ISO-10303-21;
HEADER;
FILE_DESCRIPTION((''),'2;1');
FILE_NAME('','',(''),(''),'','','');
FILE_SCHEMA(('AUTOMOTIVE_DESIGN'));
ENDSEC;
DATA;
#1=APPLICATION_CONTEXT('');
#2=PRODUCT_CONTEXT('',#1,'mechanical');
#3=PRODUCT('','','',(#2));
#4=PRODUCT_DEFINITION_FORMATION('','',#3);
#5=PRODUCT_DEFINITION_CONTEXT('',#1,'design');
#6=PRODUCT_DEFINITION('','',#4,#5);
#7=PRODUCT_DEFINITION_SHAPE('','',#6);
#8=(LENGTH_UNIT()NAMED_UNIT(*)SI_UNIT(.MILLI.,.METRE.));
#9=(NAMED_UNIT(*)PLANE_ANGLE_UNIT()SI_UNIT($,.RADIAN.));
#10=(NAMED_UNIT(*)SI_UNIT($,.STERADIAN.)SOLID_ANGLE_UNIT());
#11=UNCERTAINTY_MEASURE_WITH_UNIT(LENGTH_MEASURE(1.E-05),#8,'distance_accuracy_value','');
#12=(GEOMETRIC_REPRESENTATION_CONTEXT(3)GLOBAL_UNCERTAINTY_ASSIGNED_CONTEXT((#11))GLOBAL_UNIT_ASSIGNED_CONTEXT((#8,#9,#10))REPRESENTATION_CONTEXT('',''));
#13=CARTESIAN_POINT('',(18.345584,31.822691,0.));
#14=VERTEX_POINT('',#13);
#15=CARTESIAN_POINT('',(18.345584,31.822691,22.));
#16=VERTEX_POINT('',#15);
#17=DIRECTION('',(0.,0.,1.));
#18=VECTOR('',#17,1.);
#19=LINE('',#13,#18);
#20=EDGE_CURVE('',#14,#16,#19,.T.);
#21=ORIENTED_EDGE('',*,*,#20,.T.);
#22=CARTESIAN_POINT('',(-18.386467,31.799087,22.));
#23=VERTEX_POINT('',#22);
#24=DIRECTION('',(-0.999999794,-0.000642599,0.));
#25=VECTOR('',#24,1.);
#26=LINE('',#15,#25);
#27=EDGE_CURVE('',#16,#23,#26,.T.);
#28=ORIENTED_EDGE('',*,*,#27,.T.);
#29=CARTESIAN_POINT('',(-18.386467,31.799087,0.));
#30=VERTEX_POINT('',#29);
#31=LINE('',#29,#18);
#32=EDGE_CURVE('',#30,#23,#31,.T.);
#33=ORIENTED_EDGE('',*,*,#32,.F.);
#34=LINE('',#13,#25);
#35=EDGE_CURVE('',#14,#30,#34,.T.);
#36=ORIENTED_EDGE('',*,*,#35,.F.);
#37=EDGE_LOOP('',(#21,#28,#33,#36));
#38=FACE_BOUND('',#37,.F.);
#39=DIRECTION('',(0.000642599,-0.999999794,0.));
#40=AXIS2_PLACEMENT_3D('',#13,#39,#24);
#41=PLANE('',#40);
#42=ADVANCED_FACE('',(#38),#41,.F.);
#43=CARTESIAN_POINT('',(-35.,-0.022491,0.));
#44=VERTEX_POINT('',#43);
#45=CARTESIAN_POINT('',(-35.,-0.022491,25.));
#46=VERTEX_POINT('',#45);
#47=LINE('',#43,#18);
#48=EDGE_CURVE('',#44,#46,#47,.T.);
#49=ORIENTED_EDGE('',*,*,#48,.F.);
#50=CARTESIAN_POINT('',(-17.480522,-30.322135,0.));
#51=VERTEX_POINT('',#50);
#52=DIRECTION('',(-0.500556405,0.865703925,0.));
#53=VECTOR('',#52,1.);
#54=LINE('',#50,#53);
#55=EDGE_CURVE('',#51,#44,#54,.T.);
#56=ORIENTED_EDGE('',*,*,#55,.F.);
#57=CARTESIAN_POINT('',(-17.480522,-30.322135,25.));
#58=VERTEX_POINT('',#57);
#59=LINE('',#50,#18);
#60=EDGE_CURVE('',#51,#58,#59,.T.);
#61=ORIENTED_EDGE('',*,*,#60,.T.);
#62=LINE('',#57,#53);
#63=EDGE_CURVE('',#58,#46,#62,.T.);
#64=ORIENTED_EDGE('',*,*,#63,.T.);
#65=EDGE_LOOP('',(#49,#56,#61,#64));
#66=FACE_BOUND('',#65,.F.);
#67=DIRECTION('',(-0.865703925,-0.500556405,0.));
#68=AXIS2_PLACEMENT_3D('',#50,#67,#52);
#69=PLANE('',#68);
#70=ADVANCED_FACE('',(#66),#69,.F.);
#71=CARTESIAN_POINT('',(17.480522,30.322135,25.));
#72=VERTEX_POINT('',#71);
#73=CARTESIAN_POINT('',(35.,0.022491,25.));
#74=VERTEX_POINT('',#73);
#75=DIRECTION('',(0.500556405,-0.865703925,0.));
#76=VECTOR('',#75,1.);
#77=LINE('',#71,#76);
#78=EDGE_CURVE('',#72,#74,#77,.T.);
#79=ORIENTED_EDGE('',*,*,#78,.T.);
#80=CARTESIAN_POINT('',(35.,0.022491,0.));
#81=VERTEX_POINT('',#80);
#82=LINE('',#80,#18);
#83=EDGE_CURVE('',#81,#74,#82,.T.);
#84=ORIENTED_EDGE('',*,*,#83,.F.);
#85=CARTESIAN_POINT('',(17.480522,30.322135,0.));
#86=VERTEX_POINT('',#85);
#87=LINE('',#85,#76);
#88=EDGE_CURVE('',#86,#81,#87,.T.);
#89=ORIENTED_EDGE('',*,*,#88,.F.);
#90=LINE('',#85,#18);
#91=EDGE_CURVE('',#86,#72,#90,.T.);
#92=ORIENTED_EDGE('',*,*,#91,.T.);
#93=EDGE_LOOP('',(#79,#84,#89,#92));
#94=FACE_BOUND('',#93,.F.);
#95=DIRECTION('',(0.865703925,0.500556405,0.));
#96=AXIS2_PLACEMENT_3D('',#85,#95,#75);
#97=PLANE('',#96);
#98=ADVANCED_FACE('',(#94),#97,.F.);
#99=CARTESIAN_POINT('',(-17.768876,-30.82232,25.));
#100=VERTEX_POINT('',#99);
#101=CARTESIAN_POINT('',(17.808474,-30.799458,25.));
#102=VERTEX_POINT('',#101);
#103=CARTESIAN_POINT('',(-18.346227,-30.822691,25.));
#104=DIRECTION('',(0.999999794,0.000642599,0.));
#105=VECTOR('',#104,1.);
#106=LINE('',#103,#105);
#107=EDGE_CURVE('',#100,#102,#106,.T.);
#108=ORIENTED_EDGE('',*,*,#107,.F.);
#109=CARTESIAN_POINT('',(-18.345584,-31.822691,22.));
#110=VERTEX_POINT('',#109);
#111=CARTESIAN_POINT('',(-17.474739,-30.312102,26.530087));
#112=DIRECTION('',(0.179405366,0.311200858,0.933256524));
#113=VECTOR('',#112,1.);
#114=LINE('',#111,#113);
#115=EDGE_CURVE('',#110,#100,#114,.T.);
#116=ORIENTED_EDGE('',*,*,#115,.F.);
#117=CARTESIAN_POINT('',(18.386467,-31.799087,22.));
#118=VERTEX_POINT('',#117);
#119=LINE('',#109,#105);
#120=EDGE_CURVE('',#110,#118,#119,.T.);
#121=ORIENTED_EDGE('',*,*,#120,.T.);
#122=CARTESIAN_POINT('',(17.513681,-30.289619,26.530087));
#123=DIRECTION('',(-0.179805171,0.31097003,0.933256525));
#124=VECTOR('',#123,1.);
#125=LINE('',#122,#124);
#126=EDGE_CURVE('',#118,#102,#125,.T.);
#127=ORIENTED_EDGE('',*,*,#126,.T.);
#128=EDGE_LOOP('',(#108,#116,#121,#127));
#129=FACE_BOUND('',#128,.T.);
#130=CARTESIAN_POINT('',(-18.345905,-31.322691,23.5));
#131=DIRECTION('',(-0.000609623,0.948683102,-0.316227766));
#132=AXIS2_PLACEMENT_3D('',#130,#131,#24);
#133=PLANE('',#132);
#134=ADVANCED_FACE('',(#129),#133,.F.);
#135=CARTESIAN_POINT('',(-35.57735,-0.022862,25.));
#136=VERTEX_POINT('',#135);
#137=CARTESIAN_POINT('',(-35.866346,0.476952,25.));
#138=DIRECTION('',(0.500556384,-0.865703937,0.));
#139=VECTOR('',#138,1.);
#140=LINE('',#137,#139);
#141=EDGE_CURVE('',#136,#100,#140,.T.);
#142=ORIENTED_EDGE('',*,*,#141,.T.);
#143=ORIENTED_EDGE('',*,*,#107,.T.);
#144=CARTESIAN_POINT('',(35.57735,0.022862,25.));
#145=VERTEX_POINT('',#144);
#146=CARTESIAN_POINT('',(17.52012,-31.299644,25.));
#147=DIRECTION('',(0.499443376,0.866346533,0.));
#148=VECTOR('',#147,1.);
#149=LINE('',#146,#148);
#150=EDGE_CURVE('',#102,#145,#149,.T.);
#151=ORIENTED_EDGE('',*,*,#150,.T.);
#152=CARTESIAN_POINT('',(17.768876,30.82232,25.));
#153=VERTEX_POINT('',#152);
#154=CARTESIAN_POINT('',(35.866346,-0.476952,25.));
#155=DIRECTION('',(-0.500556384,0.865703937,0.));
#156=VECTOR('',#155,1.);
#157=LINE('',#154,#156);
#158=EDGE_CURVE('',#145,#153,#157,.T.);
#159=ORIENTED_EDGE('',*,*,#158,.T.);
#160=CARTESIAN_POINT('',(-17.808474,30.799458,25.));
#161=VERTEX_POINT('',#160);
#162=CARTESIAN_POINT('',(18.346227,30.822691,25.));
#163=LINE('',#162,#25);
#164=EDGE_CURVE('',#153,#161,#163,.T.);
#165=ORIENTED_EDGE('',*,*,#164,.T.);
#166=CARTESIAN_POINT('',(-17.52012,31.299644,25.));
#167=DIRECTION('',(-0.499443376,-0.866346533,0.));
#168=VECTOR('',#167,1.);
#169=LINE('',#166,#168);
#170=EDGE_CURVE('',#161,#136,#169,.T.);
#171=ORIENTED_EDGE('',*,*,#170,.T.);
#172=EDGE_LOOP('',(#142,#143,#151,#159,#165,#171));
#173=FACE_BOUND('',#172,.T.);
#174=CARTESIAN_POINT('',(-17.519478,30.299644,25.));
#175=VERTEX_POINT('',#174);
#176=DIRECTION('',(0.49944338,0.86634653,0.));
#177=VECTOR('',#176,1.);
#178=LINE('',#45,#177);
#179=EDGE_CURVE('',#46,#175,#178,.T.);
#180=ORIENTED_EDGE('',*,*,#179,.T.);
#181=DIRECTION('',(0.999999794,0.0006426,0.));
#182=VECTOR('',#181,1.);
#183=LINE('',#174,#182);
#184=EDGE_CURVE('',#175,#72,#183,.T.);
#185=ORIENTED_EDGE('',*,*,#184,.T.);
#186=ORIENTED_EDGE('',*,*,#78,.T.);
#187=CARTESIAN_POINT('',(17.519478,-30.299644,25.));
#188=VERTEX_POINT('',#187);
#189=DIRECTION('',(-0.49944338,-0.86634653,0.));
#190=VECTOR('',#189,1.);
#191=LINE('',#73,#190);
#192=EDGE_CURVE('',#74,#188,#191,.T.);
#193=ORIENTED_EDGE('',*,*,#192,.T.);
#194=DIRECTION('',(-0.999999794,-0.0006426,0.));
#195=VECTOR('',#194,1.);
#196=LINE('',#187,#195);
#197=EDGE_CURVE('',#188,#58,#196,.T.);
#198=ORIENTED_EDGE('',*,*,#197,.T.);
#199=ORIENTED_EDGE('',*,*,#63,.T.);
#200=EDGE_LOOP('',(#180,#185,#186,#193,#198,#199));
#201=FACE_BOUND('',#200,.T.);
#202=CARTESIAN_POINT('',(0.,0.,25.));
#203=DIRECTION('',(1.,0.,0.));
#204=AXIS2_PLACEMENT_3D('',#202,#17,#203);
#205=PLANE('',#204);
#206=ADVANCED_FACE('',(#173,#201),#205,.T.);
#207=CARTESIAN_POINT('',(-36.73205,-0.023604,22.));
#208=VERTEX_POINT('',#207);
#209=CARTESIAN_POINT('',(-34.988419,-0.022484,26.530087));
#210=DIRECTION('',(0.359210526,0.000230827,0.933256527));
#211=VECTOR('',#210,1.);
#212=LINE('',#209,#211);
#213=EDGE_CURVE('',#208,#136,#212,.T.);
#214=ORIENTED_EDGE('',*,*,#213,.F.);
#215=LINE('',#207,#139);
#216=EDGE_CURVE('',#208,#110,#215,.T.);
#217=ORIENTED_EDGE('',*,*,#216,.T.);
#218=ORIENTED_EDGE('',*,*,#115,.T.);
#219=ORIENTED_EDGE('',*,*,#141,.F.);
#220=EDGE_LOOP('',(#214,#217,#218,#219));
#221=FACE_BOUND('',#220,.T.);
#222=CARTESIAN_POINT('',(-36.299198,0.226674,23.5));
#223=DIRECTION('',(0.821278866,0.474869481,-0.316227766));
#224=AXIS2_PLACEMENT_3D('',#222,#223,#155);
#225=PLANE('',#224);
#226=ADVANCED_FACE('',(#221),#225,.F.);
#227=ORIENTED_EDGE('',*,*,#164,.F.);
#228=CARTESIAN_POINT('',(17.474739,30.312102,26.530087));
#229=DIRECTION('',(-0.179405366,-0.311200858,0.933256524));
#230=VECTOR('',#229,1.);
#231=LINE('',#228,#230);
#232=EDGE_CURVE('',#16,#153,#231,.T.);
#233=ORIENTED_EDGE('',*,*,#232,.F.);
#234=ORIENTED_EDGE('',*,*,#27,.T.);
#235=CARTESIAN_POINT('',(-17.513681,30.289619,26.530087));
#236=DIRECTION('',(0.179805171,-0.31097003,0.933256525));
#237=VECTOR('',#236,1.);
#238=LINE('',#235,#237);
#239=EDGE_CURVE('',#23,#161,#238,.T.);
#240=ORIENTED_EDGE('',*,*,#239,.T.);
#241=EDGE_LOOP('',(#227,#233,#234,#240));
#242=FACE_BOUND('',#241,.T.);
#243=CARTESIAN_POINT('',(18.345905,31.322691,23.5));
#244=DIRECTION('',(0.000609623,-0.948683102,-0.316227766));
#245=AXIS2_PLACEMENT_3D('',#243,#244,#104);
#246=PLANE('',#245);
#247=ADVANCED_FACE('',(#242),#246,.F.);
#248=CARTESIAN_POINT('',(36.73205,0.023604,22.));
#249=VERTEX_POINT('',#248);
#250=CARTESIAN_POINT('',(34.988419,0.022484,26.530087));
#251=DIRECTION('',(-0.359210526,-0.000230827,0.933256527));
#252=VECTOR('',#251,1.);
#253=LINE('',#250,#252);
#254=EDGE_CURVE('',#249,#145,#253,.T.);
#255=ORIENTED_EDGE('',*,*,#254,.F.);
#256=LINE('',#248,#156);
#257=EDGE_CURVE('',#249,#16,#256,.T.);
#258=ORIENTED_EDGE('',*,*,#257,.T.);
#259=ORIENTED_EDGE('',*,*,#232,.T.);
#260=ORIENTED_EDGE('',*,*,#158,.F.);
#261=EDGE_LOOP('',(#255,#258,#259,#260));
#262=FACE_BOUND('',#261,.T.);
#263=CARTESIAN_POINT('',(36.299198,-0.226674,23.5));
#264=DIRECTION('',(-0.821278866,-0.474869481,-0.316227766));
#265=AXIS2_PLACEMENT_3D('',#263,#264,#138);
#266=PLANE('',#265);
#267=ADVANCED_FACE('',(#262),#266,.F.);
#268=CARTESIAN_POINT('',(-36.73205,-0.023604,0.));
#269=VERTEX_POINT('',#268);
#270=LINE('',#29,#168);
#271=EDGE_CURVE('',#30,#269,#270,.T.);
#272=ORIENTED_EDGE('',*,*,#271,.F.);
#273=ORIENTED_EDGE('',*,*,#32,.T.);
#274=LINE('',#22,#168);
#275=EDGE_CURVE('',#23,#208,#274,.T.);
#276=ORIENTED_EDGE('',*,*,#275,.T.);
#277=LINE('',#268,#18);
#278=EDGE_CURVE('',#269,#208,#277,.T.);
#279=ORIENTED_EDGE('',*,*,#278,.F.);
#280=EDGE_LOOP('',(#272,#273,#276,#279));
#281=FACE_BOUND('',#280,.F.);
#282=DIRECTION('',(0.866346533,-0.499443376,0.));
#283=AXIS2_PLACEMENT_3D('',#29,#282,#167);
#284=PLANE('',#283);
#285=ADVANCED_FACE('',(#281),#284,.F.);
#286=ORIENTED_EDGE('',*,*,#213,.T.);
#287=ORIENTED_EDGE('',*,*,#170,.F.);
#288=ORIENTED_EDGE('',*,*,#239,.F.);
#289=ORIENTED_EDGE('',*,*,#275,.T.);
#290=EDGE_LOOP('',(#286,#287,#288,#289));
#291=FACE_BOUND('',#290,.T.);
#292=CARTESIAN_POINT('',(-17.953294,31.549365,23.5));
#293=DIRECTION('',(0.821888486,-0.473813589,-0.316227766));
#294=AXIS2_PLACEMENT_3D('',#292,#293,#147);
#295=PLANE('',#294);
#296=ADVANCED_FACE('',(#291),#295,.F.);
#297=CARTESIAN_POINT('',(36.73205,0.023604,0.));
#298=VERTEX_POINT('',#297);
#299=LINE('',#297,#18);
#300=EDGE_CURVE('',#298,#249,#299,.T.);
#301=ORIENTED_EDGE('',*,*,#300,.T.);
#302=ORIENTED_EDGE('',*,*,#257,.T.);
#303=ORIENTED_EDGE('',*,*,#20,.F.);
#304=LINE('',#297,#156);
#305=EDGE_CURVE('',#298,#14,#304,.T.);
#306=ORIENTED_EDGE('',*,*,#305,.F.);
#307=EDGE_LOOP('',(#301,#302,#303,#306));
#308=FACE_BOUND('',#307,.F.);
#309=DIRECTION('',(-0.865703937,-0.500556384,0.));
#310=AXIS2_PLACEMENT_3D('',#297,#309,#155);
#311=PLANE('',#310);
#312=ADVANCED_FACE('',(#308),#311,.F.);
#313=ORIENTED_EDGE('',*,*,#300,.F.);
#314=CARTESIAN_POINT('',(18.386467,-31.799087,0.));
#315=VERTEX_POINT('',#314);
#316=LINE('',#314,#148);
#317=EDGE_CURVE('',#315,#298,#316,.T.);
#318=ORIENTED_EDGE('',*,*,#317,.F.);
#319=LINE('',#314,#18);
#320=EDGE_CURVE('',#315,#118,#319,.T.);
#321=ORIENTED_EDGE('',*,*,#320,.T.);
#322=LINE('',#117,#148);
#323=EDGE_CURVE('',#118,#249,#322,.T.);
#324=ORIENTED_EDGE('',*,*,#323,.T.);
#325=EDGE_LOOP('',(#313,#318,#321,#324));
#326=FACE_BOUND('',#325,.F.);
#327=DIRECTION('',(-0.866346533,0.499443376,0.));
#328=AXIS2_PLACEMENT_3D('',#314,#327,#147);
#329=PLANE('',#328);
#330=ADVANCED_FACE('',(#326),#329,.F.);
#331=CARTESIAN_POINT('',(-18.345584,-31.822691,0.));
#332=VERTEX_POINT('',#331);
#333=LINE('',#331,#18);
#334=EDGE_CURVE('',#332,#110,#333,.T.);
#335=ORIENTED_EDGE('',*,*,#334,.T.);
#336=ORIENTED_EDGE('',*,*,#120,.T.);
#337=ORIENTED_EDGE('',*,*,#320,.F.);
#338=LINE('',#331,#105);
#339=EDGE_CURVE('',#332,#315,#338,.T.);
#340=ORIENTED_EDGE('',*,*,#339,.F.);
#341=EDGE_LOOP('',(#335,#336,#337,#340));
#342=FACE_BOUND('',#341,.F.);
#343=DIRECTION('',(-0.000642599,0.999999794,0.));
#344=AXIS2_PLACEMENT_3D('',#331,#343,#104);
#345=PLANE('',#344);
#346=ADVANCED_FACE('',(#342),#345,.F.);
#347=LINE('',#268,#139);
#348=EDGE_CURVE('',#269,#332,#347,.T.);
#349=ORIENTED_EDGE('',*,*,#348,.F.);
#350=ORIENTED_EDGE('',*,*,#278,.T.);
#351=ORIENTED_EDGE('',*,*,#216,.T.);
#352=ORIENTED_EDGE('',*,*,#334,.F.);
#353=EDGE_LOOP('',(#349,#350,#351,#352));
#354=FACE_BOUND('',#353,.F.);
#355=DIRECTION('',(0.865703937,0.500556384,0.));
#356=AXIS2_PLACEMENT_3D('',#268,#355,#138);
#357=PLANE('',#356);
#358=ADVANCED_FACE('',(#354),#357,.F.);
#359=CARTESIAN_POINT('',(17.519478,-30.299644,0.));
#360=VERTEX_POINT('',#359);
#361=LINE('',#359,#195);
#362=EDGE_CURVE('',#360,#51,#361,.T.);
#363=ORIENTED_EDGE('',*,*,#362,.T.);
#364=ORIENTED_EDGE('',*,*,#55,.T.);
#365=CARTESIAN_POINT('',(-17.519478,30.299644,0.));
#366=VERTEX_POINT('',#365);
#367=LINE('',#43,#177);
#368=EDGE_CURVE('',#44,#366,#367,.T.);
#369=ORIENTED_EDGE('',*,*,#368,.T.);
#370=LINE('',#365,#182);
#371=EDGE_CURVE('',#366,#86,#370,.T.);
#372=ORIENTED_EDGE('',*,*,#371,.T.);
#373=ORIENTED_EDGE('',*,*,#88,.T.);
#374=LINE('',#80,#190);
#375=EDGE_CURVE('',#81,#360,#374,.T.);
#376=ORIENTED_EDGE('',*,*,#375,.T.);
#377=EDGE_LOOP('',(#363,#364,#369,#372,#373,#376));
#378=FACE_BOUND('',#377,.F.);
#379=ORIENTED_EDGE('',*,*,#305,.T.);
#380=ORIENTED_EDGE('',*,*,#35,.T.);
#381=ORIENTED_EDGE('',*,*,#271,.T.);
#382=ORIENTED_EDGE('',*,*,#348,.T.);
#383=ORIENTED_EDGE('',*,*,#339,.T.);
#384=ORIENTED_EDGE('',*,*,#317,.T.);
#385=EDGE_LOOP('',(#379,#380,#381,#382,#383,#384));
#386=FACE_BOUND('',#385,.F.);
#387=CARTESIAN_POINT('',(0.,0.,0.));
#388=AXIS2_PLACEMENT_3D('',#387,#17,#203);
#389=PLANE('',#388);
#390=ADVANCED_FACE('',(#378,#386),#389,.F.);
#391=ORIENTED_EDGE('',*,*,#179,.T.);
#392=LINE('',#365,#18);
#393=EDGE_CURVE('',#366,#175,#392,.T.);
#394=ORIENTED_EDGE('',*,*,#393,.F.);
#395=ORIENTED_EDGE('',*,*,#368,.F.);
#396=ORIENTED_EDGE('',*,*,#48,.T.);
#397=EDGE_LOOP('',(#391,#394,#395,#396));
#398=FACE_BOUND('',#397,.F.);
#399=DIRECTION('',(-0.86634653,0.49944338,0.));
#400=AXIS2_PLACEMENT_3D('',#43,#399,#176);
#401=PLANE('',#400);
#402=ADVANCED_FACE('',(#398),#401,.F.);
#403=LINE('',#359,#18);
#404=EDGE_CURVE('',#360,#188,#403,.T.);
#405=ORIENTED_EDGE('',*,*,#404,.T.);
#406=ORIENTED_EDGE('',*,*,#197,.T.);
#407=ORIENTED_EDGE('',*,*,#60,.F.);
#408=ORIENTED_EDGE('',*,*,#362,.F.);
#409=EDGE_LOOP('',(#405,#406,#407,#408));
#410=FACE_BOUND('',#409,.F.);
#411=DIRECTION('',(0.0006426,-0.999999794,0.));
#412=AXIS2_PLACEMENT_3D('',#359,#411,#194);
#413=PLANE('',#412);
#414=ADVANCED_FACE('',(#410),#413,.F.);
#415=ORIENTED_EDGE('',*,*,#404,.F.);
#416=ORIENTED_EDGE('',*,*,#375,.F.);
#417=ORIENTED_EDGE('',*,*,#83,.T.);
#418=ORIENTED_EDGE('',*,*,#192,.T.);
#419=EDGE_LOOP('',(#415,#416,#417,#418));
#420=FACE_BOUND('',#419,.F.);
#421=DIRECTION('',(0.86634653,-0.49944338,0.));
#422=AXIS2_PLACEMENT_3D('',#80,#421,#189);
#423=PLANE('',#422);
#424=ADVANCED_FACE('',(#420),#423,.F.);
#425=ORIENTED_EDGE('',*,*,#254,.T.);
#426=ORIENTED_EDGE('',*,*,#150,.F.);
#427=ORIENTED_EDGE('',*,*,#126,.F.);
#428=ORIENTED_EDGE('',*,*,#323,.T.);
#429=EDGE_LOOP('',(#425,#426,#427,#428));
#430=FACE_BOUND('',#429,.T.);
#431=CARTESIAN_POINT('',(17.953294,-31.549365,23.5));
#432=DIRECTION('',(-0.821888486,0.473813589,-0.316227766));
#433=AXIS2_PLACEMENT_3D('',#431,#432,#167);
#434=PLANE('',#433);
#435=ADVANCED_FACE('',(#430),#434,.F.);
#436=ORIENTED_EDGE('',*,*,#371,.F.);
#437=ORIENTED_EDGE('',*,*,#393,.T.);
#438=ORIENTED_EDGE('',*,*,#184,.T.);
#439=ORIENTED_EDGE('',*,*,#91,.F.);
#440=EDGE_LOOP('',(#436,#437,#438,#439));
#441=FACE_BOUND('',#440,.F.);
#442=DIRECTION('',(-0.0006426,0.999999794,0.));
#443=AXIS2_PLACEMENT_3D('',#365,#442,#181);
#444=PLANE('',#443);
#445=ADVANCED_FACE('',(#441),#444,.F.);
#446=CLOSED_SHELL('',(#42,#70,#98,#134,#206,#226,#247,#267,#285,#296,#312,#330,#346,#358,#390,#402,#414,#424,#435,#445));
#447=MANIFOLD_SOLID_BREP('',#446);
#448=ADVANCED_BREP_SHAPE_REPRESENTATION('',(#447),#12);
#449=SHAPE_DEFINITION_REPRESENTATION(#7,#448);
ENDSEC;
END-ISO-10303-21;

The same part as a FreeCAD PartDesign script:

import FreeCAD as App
import Part
import Sketcher
Q = App.Units.Quantity


def edges_at(feature, points):
    """Names of the edges that pass closest to the given points."""
    edges = feature.Shape.Edges
    near = lambda p: min(range(len(edges)), key=lambda i: edges[i].distToShape(Part.Vertex(*p))[0])
    return sorted({f"Edge{near(p) + 1}" for p in points})

doc = App.newDocument("Part")
body = doc.addObject("PartDesign::Body", "Body")

# Sketch on XY plane
sketch1 = doc.addObject("Sketcher::SketchObject", "Sketch")
body.addObject(sketch1)
sketch1.AttachmentSupport = (doc.XY_Plane, [""])
sketch1.MapMode = "FlatFace"
sketch1.addGeometry([
    Part.LineSegment(App.Vector(-37, 0, 0), App.Vector(-18, -32, 0)),  # 0
    Part.LineSegment(App.Vector(-18, -32, 0), App.Vector(18, -32, 0)),  # 1
    Part.LineSegment(App.Vector(18, -32, 0), App.Vector(37, 0, 0)),  # 2
    Part.LineSegment(App.Vector(37, 0, 0), App.Vector(18, 32, 0)),  # 3
    Part.LineSegment(App.Vector(18, 32, 0), App.Vector(-18, 32, 0)),  # 4
    Part.LineSegment(App.Vector(-18, 32, 0), App.Vector(-37, 0, 0)),  # 5
    Part.LineSegment(App.Vector(-35, 0, 0), App.Vector(-18, 30, 0)),  # 6
    Part.LineSegment(App.Vector(-18, 30, 0), App.Vector(17, 30, 0)),  # 7
    Part.LineSegment(App.Vector(17, 30, 0), App.Vector(35, 0, 0)),  # 8
    Part.LineSegment(App.Vector(35, 0, 0), App.Vector(18, -30, 0)),  # 9
    Part.LineSegment(App.Vector(18, -30, 0), App.Vector(-17, -30, 0)),  # 10
    Part.LineSegment(App.Vector(-17, -30, 0), App.Vector(-35, 0, 0)),  # 11
], False)
sketch1.addConstraint([
    Sketcher.Constraint("Coincident", 0, 2, 1, 1),
    Sketcher.Constraint("Coincident", 1, 2, 2, 1),
    Sketcher.Constraint("Coincident", 2, 2, 3, 1),
    Sketcher.Constraint("Coincident", 3, 2, 4, 1),
    Sketcher.Constraint("Coincident", 4, 2, 5, 1),
    Sketcher.Constraint("Coincident", 5, 2, 0, 1),
    Sketcher.Constraint("Coincident", 6, 2, 7, 1),
    Sketcher.Constraint("Coincident", 7, 2, 8, 1),
    Sketcher.Constraint("Coincident", 8, 2, 9, 1),
    Sketcher.Constraint("Coincident", 9, 2, 10, 1),
    Sketcher.Constraint("Coincident", 10, 2, 11, 1),
    Sketcher.Constraint("Coincident", 11, 2, 6, 1),
    Sketcher.Constraint("Symmetric", 0, 2, 3, 2, -1, 1),
    Sketcher.Constraint("Symmetric", 1, 2, 4, 2, -1, 1),
    Sketcher.Constraint("Symmetric", 2, 2, 5, 2, -1, 1),
    Sketcher.Constraint("Symmetric", 6, 2, 9, 2, -1, 1),
    Sketcher.Constraint("Symmetric", 7, 2, 10, 2, -1, 1),
    Sketcher.Constraint("Symmetric", 8, 2, 11, 2, -1, 1),
    Sketcher.Constraint("Parallel", 5, 6),
    Sketcher.Constraint("Parallel", 4, 7),
    Sketcher.Constraint("Parallel", 3, 8),
    Sketcher.Constraint("Equal", 0, 1),
    Sketcher.Constraint("Equal", 1, 2),
    Sketcher.Constraint("Equal", 6, 7),
    Sketcher.Constraint("Equal", 7, 8),
    Sketcher.Constraint("DistanceX", -1, 1, 8, 2, Q("35 mm")),
    Sketcher.Constraint("DistanceX", 6, 2, 7, 2, Q("35 mm")),
    Sketcher.Constraint("DistanceX", 5, 2, 2, 2, Q("73.4641 mm")),
    Sketcher.Constraint("DistanceY", 8, 2, 3, 2, Q("31.8002 mm")),
    Sketcher.Constraint("DistanceY", 0, 2, -1, 1, Q("31.822691 mm")),
])
pad1 = doc.addObject("PartDesign::Pad", "Pad")
body.addObject(pad1)
pad1.Profile = sketch1
pad1.Length = 25
doc.recompute()

chamfer = doc.addObject("PartDesign::Chamfer", "Chamfer")
body.addObject(chamfer)
chamfer.Base = (pad1, edges_at(pad1, [
    (27.559, -15.888, 25),
    (0.02, -31.811, 25),
    (-27.539, -15.923, 25),
    (-27.559, 15.888, 25),
    (-0.02, 31.811, 25),
    (27.539, 15.923, 25),
]))
chamfer.ChamferType = "Two distances"
chamfer.Size = 3
chamfer.Size2 = 1

doc.recompute()
